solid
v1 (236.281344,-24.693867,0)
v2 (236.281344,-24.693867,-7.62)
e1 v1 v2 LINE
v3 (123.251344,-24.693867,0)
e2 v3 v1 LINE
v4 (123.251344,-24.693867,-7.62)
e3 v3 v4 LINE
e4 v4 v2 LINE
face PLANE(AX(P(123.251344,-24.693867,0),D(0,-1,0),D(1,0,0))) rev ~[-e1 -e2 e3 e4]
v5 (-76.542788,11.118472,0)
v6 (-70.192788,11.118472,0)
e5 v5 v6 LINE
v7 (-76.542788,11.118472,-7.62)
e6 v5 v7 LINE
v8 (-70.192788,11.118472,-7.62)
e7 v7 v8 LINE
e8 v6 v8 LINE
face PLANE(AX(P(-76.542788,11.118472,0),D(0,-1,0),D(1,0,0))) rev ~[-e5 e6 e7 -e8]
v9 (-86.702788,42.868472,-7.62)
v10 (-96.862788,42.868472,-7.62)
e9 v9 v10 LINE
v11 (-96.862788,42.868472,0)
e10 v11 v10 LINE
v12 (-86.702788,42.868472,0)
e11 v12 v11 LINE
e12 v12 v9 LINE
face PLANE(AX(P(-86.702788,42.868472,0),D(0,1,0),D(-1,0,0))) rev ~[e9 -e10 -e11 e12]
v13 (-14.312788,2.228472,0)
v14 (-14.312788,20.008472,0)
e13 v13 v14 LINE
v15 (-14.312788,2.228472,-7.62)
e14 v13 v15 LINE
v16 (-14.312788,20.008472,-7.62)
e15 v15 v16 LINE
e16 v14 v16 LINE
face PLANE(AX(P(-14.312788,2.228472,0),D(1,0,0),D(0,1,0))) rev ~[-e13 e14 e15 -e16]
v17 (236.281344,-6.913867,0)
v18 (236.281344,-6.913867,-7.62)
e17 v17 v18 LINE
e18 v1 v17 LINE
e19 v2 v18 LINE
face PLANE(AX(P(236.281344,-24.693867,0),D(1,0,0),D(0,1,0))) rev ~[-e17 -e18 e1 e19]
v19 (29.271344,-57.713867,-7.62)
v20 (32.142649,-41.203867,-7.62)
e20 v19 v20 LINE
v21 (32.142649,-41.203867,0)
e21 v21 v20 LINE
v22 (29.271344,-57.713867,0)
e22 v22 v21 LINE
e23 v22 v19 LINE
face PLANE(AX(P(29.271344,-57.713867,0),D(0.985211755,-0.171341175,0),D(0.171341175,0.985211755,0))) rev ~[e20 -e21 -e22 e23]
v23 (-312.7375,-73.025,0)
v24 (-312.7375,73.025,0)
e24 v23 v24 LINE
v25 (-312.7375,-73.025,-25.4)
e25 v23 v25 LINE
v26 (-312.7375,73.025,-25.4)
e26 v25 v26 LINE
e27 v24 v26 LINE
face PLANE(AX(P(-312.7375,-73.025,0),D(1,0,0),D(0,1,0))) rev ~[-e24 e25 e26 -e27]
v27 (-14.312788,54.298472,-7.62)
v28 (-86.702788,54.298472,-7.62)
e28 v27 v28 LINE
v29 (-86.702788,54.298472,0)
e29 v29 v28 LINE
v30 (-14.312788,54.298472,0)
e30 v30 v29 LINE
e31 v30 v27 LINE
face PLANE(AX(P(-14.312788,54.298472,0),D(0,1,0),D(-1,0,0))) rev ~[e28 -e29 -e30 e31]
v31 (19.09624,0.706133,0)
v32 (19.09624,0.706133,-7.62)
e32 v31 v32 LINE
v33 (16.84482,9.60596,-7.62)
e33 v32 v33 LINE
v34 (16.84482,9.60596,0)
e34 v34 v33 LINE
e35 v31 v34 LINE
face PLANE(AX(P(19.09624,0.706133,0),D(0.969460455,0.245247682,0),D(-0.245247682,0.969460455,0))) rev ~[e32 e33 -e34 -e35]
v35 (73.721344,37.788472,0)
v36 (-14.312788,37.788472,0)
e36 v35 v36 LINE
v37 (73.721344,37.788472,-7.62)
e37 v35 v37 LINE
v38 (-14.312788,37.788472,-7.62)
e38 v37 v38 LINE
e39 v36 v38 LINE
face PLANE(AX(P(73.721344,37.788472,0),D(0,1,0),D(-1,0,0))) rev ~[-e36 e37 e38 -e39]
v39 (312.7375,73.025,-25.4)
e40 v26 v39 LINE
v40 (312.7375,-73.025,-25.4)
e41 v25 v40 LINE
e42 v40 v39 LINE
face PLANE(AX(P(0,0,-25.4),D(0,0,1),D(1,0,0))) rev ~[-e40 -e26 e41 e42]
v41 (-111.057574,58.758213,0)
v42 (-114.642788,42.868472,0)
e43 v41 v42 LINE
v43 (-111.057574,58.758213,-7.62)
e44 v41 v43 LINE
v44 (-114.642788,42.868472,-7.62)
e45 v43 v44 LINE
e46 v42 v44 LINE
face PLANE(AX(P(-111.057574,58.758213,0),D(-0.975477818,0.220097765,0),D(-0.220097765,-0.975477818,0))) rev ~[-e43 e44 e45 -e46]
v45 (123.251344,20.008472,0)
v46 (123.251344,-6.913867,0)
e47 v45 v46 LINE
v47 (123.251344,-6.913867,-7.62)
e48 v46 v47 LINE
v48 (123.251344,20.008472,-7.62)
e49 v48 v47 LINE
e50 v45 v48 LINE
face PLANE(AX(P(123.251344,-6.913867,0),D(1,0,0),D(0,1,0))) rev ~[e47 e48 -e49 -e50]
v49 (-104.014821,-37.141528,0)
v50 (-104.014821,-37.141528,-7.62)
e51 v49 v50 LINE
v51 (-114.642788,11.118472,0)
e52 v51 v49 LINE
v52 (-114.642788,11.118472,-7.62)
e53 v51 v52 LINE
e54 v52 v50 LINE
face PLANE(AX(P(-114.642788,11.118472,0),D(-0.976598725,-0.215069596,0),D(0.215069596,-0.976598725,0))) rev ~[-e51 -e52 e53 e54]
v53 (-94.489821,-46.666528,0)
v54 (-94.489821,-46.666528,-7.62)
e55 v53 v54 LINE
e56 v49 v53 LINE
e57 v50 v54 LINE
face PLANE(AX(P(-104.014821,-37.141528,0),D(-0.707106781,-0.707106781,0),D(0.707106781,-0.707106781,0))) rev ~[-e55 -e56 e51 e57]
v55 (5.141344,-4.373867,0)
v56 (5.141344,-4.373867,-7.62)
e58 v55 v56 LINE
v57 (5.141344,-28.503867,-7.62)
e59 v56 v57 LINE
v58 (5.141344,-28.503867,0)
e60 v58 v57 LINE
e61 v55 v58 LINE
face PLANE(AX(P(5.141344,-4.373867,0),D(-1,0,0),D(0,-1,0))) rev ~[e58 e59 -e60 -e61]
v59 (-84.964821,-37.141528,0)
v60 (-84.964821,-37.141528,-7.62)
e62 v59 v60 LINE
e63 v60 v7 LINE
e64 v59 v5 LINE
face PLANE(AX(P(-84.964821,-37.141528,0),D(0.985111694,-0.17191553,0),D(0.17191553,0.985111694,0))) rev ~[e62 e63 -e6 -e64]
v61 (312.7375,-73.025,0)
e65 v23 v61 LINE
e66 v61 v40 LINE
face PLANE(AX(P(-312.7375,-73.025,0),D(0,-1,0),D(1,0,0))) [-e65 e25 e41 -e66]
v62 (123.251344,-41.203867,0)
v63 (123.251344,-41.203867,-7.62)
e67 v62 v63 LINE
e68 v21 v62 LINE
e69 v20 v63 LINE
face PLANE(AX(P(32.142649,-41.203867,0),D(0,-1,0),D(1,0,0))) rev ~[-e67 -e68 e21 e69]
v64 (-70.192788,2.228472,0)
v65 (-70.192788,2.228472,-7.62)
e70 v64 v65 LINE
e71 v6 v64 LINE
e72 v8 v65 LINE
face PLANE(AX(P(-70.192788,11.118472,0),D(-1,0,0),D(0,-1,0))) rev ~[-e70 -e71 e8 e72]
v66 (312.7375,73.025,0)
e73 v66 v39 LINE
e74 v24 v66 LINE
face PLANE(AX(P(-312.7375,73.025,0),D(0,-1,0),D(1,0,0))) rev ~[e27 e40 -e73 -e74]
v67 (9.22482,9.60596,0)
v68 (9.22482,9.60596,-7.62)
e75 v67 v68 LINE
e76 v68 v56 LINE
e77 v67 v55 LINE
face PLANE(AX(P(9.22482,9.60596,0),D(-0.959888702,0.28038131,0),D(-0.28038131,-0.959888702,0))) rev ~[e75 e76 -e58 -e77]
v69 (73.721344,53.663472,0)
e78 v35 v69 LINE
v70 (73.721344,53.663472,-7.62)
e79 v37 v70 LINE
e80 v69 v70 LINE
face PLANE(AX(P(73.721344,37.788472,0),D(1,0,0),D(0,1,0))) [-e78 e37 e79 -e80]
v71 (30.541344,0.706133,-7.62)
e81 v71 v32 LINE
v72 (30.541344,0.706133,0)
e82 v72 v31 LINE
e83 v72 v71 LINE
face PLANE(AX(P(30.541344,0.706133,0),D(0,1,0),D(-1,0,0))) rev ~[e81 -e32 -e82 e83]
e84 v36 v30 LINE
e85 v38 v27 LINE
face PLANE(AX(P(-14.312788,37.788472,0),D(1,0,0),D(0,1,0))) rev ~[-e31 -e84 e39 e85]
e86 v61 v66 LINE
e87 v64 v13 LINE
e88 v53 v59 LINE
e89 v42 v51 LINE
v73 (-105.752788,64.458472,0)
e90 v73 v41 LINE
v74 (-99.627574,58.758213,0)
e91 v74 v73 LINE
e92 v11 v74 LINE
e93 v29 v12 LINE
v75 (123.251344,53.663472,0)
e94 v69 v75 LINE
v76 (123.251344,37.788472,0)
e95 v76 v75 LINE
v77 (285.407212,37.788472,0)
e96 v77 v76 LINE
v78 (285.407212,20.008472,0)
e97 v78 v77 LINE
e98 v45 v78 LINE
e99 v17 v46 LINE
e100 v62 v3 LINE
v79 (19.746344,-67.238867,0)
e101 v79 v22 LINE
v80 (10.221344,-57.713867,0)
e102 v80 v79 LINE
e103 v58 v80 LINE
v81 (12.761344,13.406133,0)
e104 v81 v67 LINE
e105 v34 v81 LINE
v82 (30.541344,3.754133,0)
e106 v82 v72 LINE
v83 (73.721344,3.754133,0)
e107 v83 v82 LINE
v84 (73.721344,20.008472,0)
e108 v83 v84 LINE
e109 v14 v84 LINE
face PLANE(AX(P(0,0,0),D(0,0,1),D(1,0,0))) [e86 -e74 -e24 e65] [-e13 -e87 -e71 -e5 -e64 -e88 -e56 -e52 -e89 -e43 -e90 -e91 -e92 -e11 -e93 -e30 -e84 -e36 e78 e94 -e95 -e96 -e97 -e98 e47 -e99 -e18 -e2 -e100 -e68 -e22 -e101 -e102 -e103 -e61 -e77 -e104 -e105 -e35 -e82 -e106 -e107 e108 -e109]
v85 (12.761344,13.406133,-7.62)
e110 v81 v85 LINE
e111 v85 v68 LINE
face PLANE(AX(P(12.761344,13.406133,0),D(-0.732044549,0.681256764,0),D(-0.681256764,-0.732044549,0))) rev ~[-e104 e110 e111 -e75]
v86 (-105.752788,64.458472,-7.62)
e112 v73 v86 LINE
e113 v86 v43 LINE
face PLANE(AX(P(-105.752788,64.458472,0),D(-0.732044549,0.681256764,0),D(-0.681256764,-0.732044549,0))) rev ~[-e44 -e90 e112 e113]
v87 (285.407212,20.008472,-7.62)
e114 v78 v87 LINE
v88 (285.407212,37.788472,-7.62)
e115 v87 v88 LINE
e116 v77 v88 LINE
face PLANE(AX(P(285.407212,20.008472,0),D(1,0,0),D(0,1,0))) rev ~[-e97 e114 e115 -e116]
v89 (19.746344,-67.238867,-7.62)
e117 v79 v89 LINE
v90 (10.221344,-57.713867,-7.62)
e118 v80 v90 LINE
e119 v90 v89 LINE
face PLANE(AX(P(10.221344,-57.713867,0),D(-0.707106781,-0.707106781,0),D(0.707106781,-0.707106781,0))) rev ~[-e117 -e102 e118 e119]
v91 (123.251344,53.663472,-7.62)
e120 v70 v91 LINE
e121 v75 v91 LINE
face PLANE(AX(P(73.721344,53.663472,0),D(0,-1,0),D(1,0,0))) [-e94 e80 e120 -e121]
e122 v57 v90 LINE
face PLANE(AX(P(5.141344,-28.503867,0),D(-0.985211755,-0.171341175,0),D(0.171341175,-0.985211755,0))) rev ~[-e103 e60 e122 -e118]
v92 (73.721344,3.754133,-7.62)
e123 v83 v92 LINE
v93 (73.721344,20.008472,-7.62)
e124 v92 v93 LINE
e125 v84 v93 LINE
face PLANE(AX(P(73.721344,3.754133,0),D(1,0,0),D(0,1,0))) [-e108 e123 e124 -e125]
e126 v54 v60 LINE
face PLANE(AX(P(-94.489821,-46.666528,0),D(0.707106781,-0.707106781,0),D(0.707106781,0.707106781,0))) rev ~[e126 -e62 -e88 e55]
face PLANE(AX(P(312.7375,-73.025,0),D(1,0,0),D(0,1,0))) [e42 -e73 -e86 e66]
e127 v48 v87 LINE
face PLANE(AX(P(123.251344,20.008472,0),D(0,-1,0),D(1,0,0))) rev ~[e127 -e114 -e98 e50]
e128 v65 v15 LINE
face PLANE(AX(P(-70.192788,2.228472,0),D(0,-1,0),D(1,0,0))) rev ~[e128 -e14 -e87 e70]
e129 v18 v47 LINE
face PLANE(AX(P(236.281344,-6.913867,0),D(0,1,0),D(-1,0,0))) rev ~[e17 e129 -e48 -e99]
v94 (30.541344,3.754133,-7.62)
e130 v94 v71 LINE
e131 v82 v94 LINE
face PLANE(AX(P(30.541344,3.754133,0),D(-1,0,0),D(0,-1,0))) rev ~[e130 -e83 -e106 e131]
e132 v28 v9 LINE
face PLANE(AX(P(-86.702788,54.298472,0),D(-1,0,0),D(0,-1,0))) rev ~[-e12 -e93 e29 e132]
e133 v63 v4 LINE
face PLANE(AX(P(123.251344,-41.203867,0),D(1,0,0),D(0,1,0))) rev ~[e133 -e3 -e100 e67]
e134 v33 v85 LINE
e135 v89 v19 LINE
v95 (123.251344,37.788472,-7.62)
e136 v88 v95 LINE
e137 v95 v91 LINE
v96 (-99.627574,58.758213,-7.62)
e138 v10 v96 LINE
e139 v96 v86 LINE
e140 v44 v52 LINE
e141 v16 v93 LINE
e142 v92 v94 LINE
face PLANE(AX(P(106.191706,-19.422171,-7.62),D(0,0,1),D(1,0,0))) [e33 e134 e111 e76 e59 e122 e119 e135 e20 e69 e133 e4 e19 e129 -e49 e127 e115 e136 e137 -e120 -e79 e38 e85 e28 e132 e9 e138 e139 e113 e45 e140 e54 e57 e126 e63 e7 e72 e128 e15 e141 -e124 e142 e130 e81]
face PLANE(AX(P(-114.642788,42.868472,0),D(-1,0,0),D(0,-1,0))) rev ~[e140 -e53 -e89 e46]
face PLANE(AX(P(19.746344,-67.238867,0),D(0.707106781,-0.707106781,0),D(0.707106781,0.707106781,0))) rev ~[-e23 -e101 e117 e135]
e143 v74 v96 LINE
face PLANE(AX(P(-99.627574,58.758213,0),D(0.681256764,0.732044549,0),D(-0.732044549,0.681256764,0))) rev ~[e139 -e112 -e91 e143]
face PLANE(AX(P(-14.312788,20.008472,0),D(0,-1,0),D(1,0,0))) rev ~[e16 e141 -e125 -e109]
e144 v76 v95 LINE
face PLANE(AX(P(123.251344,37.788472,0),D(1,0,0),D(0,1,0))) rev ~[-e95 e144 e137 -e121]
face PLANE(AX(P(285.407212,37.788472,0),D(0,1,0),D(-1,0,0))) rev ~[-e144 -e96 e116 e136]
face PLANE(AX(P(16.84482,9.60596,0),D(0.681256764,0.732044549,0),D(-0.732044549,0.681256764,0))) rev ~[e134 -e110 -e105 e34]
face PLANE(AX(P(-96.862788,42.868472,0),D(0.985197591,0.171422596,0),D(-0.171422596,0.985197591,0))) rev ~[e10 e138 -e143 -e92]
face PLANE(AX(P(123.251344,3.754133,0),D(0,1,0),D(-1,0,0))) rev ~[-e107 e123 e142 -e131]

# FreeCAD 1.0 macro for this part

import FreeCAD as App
import Part
import Sketcher
Q = App.Units.Quantity


def add_polygon(sketch, points):
    """Adds a closed chain of lines whose ends are joined by coincident constraints."""
    first, n = sketch.GeometryCount, len(points)
    for a, b in zip(points, points[1:] + points[:1]):
        sketch.addGeometry(Part.LineSegment(App.Vector(*a, 0), App.Vector(*b, 0)), False)
    for i in range(n):
        sketch.addConstraint(Sketcher.Constraint("Coincident", first + i, 2, first + (i + 1) % n, 1))

doc = App.newDocument("Part")
body = doc.addObject("PartDesign::Body", "Body")

# Sketch on XY plane
sketch1 = body.newObject("Sketcher::SketchObject", "Sketch")
sketch1.AttachmentSupport = (doc.getObject("XY_Plane"), [""])
sketch1.MapMode = "FlatFace"
add_polygon(sketch1, [(-313, 73), (-313, -73), (313, -73), (313, 73)])  # lines 0-3
sketch1.addConstraint([
    Sketcher.Constraint("Vertical", 0),
    Sketcher.Constraint("Horizontal", 1),
    Sketcher.Constraint("Vertical", 2),
    Sketcher.Constraint("Horizontal", 3),
    Sketcher.Constraint("Symmetric", 0, 2, 2, 2, -1, 1),
    Sketcher.Constraint("DistanceY", 0, 2, 0, 1, Q("5.75 in")),
    Sketcher.Constraint("DistanceX", 1, 1, 1, 2, Q("24.625 in")),
])
pad1 = body.newObject("PartDesign::Pad", "Pad")
pad1.Profile = sketch1
pad1.Length = Q("1 in")
pad1.Reversed = True

# Sketch on XY plane
sketch2 = body.newObject("Sketcher::SketchObject", "Sketch001")
sketch2.AttachmentSupport = (doc.getObject("XY_Plane"), [""])
sketch2.MapMode = "FlatFace"
add_polygon(sketch2, [(5.1, -28.5), (10.2, -57.7), (19.7, -67.2), (29.3, -57.7), (32.1, -41.2), (123.3, -41.2), (123.3, -24.7), (236.3, -24.7), (236.3, -6.9), (123.3, -6.9), (123.3, 3.8), (30.5, 3.8), (30.5, 0.7), (19.1, 0.7), (16.8, 9.6), (12.8, 13.4), (9.2, 9.6), (5.1, -4.4)])  # lines 0-17
sketch2.addConstraint([
    Sketcher.Constraint("Horizontal", 4),
    Sketcher.Constraint("Vertical", 5),
    Sketcher.Constraint("Horizontal", 6),
    Sketcher.Constraint("Vertical", 7),
    Sketcher.Constraint("Horizontal", 8),
    Sketcher.Constraint("Vertical", 9),
    Sketcher.Constraint("Horizontal", 10),
    Sketcher.Constraint("Vertical", 11),
    Sketcher.Constraint("Horizontal", 12),
    Sketcher.Constraint("Vertical", 17),
    Sketcher.Constraint("Perpendicular", 1, 2),
    Sketcher.Constraint("Perpendicular", 14, 15),
    Sketcher.Constraint("Horizontal", 0, 2, 2, 2),
    Sketcher.Constraint("Horizontal", 13, 2, 15, 2),
    Sketcher.Constraint("Vertical", 5, 2, 8, 2),
    Sketcher.Constraint("Equal", 1, 2),
    Sketcher.Constraint("DistanceY", 7, 1, 7, 2, Q("0.7 in")),
    Sketcher.Constraint("DistanceY", 2, 2, 7, 2, Q("2 in")),
    Sketcher.Constraint("DistanceX", 16, 2, 11, 2, Q("1 in")),
    Sketcher.Constraint("DistanceX", 6, 1, 6, 2, Q("4.45 in")),
    Sketcher.Constraint("DistanceX", 10, 2, 10, 1, Q("3.65 in")),
    Sketcher.Constraint("DistanceY", 5, 1, 5, 2, Q("0.65 in")),
    Sketcher.Constraint("DistanceY", 9, 1, 9, 2, Q("0.42 in")),
    Sketcher.Constraint("DistanceY", 11, 2, 11, 1, Q("0.12 in")),
    Sketcher.Constraint("DistanceY", 17, 2, 17, 1, Q("0.95 in")),
    Sketcher.Constraint("DistanceX", 2, 2, 4, 2, Q("3.7 in")),
    Sketcher.Constraint("DistanceX", 0, 2, 10, 2, Q("0.8 in")),
    Sketcher.Constraint("DistanceY", 12, 2, 14, 2, Q("0.5 in")),
    Sketcher.Constraint("DistanceX", 14, 2, 10, 2, Q("0.7 in")),
    Sketcher.Constraint("DistanceX", 15, 2, 13, 2, Q("0.3 in")),
    Sketcher.Constraint("DistanceY", 16, 2, 12, 2, Q("0.2 in")),
    Sketcher.Constraint("Distance", 3, 16.757819),
    Sketcher.Constraint("Distance", 14, 5.578179),
    Sketcher.Constraint("DistanceX", 12, 2, 12, 1, 11.445105),
    Sketcher.Constraint("DistanceX", -1, 1, 3, 2, 32.142649),
    Sketcher.Constraint("DistanceY", -1, 1, 13, 2, 9.60596),
])
pocket1 = body.newObject("PartDesign::Pocket", "Pocket")
pocket1.Profile = sketch2
pocket1.Length = Q("0.3 in")

# Sketch on XY plane
sketch3 = body.newObject("Sketcher::SketchObject", "Sketch002")
sketch3.AttachmentSupport = (doc.getObject("XY_Plane"), [""])
sketch3.MapMode = "FlatFace"
add_polygon(sketch3, [(-115, 11), (-104, -37), (-94, -47), (-85, -37), (-77, 11), (-70, 11), (-70, 2), (-14, 2), (-14, 20), (74, 20), (74, 4), (123, 4), (123, 20), (285, 20), (285, 38), (123, 38), (123, 54), (74, 54), (74, 38), (-14, 38), (-14, 54), (-87, 54), (-87, 43), (-97, 43), (-100, 59), (-106, 64), (-111, 59), (-115, 43)])  # lines 0-27
sketch3.addConstraint([
    Sketcher.Constraint("Horizontal", 4),
    Sketcher.Constraint("Vertical", 5),
    Sketcher.Constraint("Horizontal", 6),
    Sketcher.Constraint("Vertical", 7),
    Sketcher.Constraint("Horizontal", 8),
    Sketcher.Constraint("Vertical", 9),
    Sketcher.Constraint("Horizontal", 10),
    Sketcher.Constraint("Vertical", 11),
    Sketcher.Constraint("Horizontal", 12),
    Sketcher.Constraint("Vertical", 13),
    Sketcher.Constraint("Horizontal", 14),
    Sketcher.Constraint("Vertical", 15),
    Sketcher.Constraint("Horizontal", 16),
    Sketcher.Constraint("Vertical", 17),
    Sketcher.Constraint("Horizontal", 18),
    Sketcher.Constraint("Vertical", 19),
    Sketcher.Constraint("Horizontal", 20),
    Sketcher.Constraint("Vertical", 21),
    Sketcher.Constraint("Horizontal", 22),
    Sketcher.Constraint("Vertical", 27),
    Sketcher.Constraint("Perpendicular", 1, 2),
    Sketcher.Constraint("Perpendicular", 24, 25),
    Sketcher.Constraint("Horizontal", 0, 2, 2, 2),
    Sketcher.Constraint("Horizontal", 8, 2, 11, 2),
    Sketcher.Constraint("Horizontal", 14, 2, 17, 2),
    Sketcher.Constraint("Horizontal", 23, 2, 25, 2),
    Sketcher.Constraint("Horizontal", 22, 2, 26, 2),
    Sketcher.Constraint("Horizontal", 4, 2, 27, 2),
    Sketcher.Constraint("Vertical", 11, 2, 14, 2),
    Sketcher.Constraint("Vertical", 9, 2, 16, 2),
    Sketcher.Constraint("Vertical", 7, 2, 18, 2),
    Sketcher.Constraint("Equal", 7, 13),
    Sketcher.Constraint("Equal", 1, 2),
    Sketcher.Constraint("DistanceX", 6, 1, 6, 2, Q("2.2 in")),
    Sketcher.Constraint("DistanceX", 22, 2, 22, 1, Q("0.4 in")),
    Sketcher.Constraint("DistanceY", 7, 1, 7, 2, Q("0.7 in")),
    Sketcher.Constraint("DistanceX", 4, 1, 4, 2, Q("0.25 in")),
    Sketcher.Constraint("DistanceX", 10, 1, 10, 2, Q("1.95 in")),
    Sketcher.Constraint("DistanceX", 20, 2, 20, 1, Q("2.85 in")),
    Sketcher.Constraint("DistanceY", 5, 2, 5, 1, Q("0.35 in")),
    Sketcher.Constraint("DistanceY", 19, 1, 19, 2, Q("0.65 in")),
    Sketcher.Constraint("DistanceY", 21, 2, 21, 1, Q("0.45 in")),
    Sketcher.Constraint("DistanceY", 2, 2, 3, 2, Q("1.9 in")),
    Sketcher.Constraint("DistanceX", 7, 2, 12, 2, Q("11.8 in")),
    Sketcher.Constraint("DistanceY", 20, 2, 24, 2, Q("0.4 in")),
    Sketcher.Constraint("DistanceX", 26, 2, 22, 2, Q("0.7 in")),
    Sketcher.Constraint("DistanceY", 15, 1, 15, 2, Q("0.625 in")),
    Sketcher.Constraint("DistanceX", 0, 2, 2, 2, Q("0.75 in")),
    Sketcher.Constraint("DistanceX", 24, 2, 20, 2, Q("0.75 in")),
    Sketcher.Constraint("DistanceX", 25, 2, 23, 2, Q("0.45 in")),
    Sketcher.Constraint("DistanceY", 9, 2, 9, 1, 16.254339),
    Sketcher.Constraint("Distance", 3, 48.989369),
    Sketcher.Constraint("Distance", 23, 16.128482),
    Sketcher.Constraint("DistanceX", 8, 1, 8, 2, 88.034132),
    Sketcher.Constraint("DistanceX", 0, 2, -1, 1, 104.014821),
    Sketcher.Constraint("DistanceY", 0, 2, -1, 1, 37.141528),
])
pocket2 = body.newObject("PartDesign::Pocket", "Pocket001")
pocket2.Profile = sketch3
pocket2.Length = Q("0.3 in")

doc.recompute()
